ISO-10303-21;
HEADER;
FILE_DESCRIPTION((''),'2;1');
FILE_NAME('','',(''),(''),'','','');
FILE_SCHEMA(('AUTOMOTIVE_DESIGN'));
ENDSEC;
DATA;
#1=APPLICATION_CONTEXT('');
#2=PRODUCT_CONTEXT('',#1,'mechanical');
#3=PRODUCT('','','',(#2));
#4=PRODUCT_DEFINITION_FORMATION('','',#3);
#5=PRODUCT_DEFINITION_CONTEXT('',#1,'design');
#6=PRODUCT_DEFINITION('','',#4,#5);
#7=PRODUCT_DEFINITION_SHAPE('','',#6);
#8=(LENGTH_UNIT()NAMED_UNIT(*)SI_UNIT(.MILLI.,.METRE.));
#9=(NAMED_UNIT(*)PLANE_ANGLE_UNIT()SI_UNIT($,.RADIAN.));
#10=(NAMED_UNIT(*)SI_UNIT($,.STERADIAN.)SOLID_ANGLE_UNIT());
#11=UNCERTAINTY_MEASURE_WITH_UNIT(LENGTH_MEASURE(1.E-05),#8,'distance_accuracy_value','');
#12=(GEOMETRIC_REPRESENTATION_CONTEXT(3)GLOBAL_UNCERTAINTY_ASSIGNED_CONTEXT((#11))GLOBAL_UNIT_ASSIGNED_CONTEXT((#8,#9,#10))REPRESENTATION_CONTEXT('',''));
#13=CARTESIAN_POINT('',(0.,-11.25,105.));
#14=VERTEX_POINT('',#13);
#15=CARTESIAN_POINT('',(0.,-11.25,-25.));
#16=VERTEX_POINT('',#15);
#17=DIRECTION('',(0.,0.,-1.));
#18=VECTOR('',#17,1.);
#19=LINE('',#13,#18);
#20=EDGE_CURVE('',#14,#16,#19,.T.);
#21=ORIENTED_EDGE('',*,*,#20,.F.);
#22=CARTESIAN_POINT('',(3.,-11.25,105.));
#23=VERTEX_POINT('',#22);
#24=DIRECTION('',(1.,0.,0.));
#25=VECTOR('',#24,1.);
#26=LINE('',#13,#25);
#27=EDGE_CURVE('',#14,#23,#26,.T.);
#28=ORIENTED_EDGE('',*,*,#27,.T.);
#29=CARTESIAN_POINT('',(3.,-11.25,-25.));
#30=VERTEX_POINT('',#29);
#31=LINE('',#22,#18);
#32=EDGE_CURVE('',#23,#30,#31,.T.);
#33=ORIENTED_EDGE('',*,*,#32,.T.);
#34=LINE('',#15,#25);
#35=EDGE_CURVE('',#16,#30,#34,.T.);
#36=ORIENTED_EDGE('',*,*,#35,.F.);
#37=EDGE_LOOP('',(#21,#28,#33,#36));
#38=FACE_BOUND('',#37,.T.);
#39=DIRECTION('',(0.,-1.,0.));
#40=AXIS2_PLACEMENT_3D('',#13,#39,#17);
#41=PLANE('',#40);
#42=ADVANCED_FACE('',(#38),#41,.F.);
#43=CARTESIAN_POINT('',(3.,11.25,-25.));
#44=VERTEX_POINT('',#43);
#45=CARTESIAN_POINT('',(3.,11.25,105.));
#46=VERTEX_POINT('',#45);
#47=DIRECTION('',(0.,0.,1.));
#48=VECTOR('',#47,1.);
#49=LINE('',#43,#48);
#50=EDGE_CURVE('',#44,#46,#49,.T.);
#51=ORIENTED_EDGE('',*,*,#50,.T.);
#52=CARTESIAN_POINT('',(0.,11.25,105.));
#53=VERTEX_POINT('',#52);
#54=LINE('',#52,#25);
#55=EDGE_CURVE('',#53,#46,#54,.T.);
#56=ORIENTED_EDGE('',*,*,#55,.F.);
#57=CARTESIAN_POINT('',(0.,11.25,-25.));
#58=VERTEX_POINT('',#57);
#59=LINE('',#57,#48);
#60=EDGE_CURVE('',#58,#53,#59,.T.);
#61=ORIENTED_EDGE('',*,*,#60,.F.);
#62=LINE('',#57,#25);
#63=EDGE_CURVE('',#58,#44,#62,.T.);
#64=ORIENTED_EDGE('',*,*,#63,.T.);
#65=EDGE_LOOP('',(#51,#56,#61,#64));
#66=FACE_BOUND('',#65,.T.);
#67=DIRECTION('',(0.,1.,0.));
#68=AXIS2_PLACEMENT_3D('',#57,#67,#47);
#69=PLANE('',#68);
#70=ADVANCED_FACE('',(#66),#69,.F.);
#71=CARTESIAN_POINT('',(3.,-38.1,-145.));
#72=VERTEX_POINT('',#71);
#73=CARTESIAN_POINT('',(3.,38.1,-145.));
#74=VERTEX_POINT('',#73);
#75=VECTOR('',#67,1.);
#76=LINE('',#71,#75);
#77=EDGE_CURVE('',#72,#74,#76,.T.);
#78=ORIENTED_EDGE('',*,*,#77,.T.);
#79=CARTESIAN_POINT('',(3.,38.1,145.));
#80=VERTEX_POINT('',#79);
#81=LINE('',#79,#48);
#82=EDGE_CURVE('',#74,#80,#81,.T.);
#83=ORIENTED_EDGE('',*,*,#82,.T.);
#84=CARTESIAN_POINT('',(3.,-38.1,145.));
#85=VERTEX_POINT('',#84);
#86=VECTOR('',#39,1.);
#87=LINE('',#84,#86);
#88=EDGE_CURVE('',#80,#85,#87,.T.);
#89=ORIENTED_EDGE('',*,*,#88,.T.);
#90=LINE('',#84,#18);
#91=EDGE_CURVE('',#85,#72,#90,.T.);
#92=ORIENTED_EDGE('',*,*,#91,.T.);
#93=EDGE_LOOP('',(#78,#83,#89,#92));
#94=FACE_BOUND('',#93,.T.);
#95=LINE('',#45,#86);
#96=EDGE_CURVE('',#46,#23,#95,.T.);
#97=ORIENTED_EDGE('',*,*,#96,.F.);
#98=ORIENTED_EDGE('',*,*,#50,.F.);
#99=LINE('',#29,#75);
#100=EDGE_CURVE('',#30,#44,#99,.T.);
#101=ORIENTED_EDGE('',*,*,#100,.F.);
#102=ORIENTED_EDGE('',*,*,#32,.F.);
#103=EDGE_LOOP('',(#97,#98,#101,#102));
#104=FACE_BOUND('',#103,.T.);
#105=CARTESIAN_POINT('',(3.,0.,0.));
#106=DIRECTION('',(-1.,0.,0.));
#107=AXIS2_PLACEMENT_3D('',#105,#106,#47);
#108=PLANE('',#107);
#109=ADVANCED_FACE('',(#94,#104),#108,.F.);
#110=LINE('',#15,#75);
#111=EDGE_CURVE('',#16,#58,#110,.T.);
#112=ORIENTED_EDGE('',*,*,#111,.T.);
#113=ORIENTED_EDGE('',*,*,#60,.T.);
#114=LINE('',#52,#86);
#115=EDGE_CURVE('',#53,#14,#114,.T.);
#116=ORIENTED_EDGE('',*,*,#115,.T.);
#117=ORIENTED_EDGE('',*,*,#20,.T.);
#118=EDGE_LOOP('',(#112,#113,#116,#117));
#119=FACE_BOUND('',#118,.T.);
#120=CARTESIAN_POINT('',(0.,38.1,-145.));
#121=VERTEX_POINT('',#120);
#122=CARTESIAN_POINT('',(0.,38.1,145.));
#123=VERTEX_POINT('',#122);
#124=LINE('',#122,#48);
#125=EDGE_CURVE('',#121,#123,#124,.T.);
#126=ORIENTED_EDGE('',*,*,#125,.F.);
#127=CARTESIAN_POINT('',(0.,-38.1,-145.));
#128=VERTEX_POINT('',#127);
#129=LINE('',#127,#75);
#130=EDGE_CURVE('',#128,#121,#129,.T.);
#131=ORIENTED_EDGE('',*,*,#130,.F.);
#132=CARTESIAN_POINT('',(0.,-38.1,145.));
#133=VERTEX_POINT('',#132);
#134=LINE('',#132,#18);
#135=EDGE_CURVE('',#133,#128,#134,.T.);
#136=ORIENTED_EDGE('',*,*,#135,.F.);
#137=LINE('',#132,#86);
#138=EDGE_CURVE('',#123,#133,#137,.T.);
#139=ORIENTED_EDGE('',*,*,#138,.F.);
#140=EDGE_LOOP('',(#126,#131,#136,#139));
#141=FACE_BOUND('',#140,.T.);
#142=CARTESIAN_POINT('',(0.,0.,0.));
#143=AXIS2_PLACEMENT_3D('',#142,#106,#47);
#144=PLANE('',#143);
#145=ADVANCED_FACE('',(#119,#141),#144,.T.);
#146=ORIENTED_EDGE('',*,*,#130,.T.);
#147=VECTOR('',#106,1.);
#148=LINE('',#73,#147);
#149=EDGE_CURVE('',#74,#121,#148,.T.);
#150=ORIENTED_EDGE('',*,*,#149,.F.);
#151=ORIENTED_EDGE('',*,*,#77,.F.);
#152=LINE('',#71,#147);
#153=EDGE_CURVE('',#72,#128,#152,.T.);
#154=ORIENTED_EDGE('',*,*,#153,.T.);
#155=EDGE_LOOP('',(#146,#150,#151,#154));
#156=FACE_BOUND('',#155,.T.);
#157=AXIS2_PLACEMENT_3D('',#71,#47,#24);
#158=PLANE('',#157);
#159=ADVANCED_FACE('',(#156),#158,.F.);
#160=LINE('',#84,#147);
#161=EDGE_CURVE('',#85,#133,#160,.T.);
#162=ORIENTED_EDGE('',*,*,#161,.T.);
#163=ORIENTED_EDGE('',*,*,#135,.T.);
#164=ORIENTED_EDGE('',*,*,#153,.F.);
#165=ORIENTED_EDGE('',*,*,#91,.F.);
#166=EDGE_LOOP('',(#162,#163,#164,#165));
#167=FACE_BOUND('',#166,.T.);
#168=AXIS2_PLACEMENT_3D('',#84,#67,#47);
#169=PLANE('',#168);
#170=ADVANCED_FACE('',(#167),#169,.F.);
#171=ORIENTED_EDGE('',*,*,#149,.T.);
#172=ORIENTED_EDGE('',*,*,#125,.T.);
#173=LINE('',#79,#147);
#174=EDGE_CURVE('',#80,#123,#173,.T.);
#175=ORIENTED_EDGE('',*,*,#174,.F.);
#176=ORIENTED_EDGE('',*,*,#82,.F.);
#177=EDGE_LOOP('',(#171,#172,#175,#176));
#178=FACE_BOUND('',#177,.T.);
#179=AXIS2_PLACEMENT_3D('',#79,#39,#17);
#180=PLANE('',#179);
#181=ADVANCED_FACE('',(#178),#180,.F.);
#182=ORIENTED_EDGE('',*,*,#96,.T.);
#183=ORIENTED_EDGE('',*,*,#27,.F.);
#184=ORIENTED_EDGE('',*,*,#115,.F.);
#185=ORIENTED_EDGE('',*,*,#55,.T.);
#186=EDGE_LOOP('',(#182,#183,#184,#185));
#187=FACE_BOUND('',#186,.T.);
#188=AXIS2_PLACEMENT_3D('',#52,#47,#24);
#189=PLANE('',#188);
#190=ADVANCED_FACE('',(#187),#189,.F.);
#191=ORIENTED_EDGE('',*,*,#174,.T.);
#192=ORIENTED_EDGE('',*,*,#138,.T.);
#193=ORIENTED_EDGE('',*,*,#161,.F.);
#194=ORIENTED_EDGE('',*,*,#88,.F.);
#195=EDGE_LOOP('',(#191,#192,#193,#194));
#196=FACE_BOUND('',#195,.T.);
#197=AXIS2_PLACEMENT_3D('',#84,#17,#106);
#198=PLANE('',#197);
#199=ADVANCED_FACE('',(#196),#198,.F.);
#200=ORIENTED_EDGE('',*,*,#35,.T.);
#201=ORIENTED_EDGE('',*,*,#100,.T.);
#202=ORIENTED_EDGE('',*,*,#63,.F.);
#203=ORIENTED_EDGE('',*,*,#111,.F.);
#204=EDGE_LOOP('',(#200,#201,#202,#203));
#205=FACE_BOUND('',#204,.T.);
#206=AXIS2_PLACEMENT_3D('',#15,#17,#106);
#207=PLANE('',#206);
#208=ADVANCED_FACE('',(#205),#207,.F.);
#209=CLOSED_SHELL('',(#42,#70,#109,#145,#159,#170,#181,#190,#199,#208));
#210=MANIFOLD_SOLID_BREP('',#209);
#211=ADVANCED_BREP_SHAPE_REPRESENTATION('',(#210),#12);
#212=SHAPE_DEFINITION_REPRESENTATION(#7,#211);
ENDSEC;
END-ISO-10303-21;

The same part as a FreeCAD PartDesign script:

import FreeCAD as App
import Part
import Sketcher

V = App.Vector
Q = App.Units.Quantity


def add_polygon(sketch, points):
    """Adds a closed chain of lines whose ends are joined by coincident constraints."""
    first, n = sketch.GeometryCount, len(points)
    for a, b in zip(points, points[1:] + points[:1]):
        sketch.addGeometry(Part.LineSegment(App.Vector(*a, 0), App.Vector(*b, 0)), False)
    for i in range(n):
        sketch.addConstraint(Sketcher.Constraint("Coincident", first + i, 2, first + (i + 1) % n, 1))

doc = App.newDocument("Part")
body = doc.addObject("PartDesign::Body", "Body")

# Sketch on YZ plane
sketch1 = body.newObject("Sketcher::SketchObject", "Sketch")
sketch1.AttachmentSupport = (doc.getObject("YZ_Plane"), [""])
sketch1.MapMode = "FlatFace"
add_polygon(sketch1, [(38.1, 145), (-38.1, 145), (-38.1, -145), (38.1, -145)])  # lines 0-3
sketch1.addConstraint([
    Sketcher.Constraint("Horizontal", 0),
    Sketcher.Constraint("Vertical", 1),
    Sketcher.Constraint("Horizontal", 2),
    Sketcher.Constraint("Vertical", 3),
    Sketcher.Constraint("Symmetric", 0, 2, 2, 2, -1, 1),
    Sketcher.Constraint("DistanceY", 1, 2, 1, 1, Q("290 mm")),
    Sketcher.Constraint("DistanceX", 0, 2, 0, 1, Q("76.2 mm")),
])
pad1 = body.newObject("PartDesign::Pad", "Pad")
pad1.Profile = sketch1
pad1.Length = 3

# Sketch on YZ plane
sketch2 = body.newObject("Sketcher::SketchObject", "Sketch001")
sketch2.AttachmentSupport = (doc.getObject("YZ_Plane"), [""])
sketch2.MapMode = "FlatFace"
sketch2.AttachmentOffset = App.Placement(V(0, 0, 3), App.Rotation())
add_polygon(sketch2, [(11.25, 105), (-11.25, 105), (-11.25, -25), (11.25, -25)])  # lines 0-3
sketch2.addConstraint([
    Sketcher.Constraint("Horizontal", 0),
    Sketcher.Constraint("Vertical", 1),
    Sketcher.Constraint("Horizontal", 2),
    Sketcher.Constraint("Vertical", 3),
    Sketcher.Constraint("DistanceY", 1, 2, 1, 1, Q("130 mm")),
    Sketcher.Constraint("DistanceX", 0, 2, 0, 1, Q("22.5 mm")),
    Sketcher.Constraint("DistanceY", -1, 1, 0, 2, Q("105 mm")),
    Sketcher.Constraint("DistanceX", 0, 2, -1, 1, Q("11.25 mm")),
])
pocket1 = body.newObject("PartDesign::Pocket", "Pocket")
pocket1.Profile = sketch2
pocket1.Type = "ThroughAll"

doc.recompute()
